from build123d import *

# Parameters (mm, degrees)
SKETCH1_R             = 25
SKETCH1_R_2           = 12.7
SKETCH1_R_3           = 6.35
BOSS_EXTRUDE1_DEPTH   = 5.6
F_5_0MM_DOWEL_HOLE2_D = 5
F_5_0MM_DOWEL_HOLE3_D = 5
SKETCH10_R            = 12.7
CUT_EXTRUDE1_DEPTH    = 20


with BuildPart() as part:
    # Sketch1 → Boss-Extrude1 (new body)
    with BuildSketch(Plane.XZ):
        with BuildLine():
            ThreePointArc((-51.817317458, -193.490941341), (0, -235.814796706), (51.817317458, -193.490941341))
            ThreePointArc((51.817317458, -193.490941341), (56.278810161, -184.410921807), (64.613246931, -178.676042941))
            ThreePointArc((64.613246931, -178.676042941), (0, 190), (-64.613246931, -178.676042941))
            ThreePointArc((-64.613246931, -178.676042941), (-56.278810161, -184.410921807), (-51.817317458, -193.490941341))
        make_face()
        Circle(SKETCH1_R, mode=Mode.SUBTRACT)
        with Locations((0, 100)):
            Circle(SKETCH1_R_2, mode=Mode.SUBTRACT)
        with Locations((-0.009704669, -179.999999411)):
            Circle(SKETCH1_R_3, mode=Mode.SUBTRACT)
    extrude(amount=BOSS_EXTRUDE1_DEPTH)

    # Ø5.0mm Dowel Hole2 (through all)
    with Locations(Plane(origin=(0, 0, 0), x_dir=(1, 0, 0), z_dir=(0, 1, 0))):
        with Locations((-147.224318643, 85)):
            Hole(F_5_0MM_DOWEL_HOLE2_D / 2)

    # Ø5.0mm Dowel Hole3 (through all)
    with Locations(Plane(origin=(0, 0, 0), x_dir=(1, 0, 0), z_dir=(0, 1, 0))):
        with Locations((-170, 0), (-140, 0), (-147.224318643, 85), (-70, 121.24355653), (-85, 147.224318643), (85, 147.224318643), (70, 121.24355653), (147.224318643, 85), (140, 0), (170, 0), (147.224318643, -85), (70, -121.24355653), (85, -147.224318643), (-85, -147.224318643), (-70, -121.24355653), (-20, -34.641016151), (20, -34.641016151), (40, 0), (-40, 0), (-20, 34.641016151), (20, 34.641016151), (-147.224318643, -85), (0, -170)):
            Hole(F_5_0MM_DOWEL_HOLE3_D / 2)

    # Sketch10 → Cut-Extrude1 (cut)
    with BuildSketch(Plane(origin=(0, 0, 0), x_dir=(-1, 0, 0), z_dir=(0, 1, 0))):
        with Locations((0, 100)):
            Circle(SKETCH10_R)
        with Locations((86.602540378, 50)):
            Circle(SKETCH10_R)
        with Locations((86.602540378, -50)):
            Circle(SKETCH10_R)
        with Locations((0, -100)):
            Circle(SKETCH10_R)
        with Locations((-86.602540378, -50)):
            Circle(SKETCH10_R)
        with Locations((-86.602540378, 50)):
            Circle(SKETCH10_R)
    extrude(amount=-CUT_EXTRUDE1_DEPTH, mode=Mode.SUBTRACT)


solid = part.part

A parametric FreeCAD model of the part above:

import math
import FreeCAD as App
import Part
import Sketcher

V = App.Vector
Q = App.Units.Quantity

doc = App.newDocument("Part")
params = doc.addObject("Spreadsheet::Sheet", "Params")
for row, (alias, value) in enumerate([
    ("sketch1_diameter", "50 mm"),
    ("sketch1_radius", "20 mm"),
    ("sketch1_radius2", "190 mm"),
    ("sketch1_diameter2", "12.7 mm"),
    ("sketch1_diameter3", "25.4 mm"),
    ("pad1_length", "5.6 mm"),
    ("sketch2_diameter", "5 mm"),
    ("hole_diameter", "5 mm"),
    ("sketch3_diameter", "5 mm"),
    ("hole2_diameter", "5 mm"),
    ("sketch4_diameter", "25.4 mm"),
    ("pocket1_length", "20 mm"),
], start=1):
    params.set(f"A{row}", alias)
    params.set(f"B{row}", "=" + value)
    params.setAlias(f"B{row}", alias)

body = doc.addObject("PartDesign::Body", "Body")

# Sketch on XZ plane
sketch1 = body.newObject("Sketcher::SketchObject", "Sketch")
sketch1.AttachmentSupport = (doc.getObject("XZ_Plane"), [""])
sketch1.MapMode = "FlatFace"
sketch1.addGeometry([
    Part.ArcOfCircle(Part.Circle(V(0, -183, 0), V(0, 0, 1), 53), math.radians(-168), math.radians(-12)),  # 0
    Part.ArcOfCircle(Part.Circle(V(71, -197, 0), V(0, 0, 1), 20), math.radians(110), math.radians(168)),  # 1
    Part.ArcOfCircle(Part.Circle(V(0, 0, 0), V(0, 0, 1), 190), math.radians(-70), math.radians(250)),  # 2
    Part.ArcOfCircle(Part.Circle(V(-71, -197, 0), V(0, 0, 1), 20), math.radians(12), math.radians(70)),  # 3
    Part.Circle(V(0, -180, 0), V(0, 0, 1), 6),  # 4
    Part.Circle(V(0, 0, 0), V(0, 0, 1), 25),  # 5
    Part.Circle(V(0, 100, 0), V(0, 0, 1), 13),  # 6
], False)
sketch1.addConstraint([
    Sketcher.Constraint("Tangent", 0, 2, 1, 2),
    Sketcher.Constraint("Tangent", 1, 1, 2, 1),
    Sketcher.Constraint("Tangent", 2, 2, 3, 2),
    Sketcher.Constraint("Tangent", 3, 1, 0, 1),
    Sketcher.Constraint("Coincident", 2, 3, -1, 1),
    Sketcher.Constraint("Coincident", 5, 3, -1, 1),
    Sketcher.Constraint("Equal", 1, 3),
    Sketcher.Constraint("PointOnObject", 0, 3, -2),
    Sketcher.Constraint("PointOnObject", 6, 3, -2),
    Sketcher.Constraint("Diameter", 5, Q("50 mm")),
    Sketcher.Constraint("Radius", 1, Q("20 mm")),
    Sketcher.Constraint("Radius", 2, Q("190 mm")),
    Sketcher.Constraint("Diameter", 4, Q("12.7 mm")),
    Sketcher.Constraint("Diameter", 6, Q("25.4 mm")),
    Sketcher.Constraint("DistanceY", 4, 3, -1, 1, Q("179.999999 mm")),
    Sketcher.Constraint("DistanceY", -1, 1, 6, 3, Q("100 mm")),
    Sketcher.Constraint("Radius", 0, Q("52.882034 mm")),
    Sketcher.Constraint("DistanceY", 0, 2, 1, 1, Q("14.814898 mm")),
    Sketcher.Constraint("DistanceX", 4, 3, 1, 1, Q("64.622952 mm")),
])
sketch1.setExpression("Constraints[9]", "Params.sketch1_diameter")
sketch1.setExpression("Constraints[10]", "Params.sketch1_radius")
sketch1.setExpression("Constraints[11]", "Params.sketch1_radius2")
sketch1.setExpression("Constraints[12]", "Params.sketch1_diameter2")
sketch1.setExpression("Constraints[13]", "Params.sketch1_diameter3")
pad1 = body.newObject("PartDesign::Pad", "Pad")
pad1.Profile = sketch1
pad1.setExpression("Length", "Params.pad1_length")

# Sketch on XZ plane
sketch2 = body.newObject("Sketcher::SketchObject", "Sketch001")
sketch2.AttachmentSupport = (doc.getObject("XZ_Plane"), [""])
sketch2.MapMode = "FlatFace"
sketch2.addGeometry(Part.Circle(V(-147.2, -85, 0), V(0, 0, 1), 2.5), False)
sketch2.addConstraint([
    Sketcher.Constraint("Diameter", 0, Q("5 mm")),
    Sketcher.Constraint("DistanceY", 0, 3, -1, 1, Q("85 mm")),
    Sketcher.Constraint("DistanceX", 0, 3, -1, 1, Q("147.224319 mm")),
])
sketch2.setExpression("Constraints[0]", "Params.sketch2_diameter")
doc.recompute()
hole = body.newObject("PartDesign::Hole", "Hole")
hole.Profile = sketch2
hole.ThreadType = "None"
hole.setExpression("Diameter", "Params.hole_diameter")
hole.DepthType = "ThroughAll"
hole.Reversed = True

# Sketch on XZ plane
sketch3 = body.newObject("Sketcher::SketchObject", "Sketch002")
sketch3.AttachmentSupport = (doc.getObject("XZ_Plane"), [""])
sketch3.MapMode = "FlatFace"
sketch3.addGeometry([
    Part.Circle(V(-170, 0, 0), V(0, 0, 1), 2.5),  # 0
    Part.Circle(V(-140, 0, 0), V(0, 0, 1), 2.5),  # 1
    Part.Circle(V(-147.2, -85, 0), V(0, 0, 1), 2.5),  # 2
    Part.Circle(V(-70, -121.2, 0), V(0, 0, 1), 2.5),  # 3
    Part.Circle(V(-85, -147.2, 0), V(0, 0, 1), 2.5),  # 4
    Part.Circle(V(85, -147.2, 0), V(0, 0, 1), 2.5),  # 5
    Part.Circle(V(70, -121.2, 0), V(0, 0, 1), 2.5),  # 6
    Part.Circle(V(147.2, -85, 0), V(0, 0, 1), 2.5),  # 7
    Part.Circle(V(140, 0, 0), V(0, 0, 1), 2.5),  # 8
    Part.Circle(V(170, 0, 0), V(0, 0, 1), 2.5),  # 9
    Part.Circle(V(147.2, 85, 0), V(0, 0, 1), 2.5),  # 10
    Part.Circle(V(70, 121.2, 0), V(0, 0, 1), 2.5),  # 11
    Part.Circle(V(85, 147.2, 0), V(0, 0, 1), 2.5),  # 12
    Part.Circle(V(-85, 147.2, 0), V(0, 0, 1), 2.5),  # 13
    Part.Circle(V(-70, 121.2, 0), V(0, 0, 1), 2.5),  # 14
    Part.Circle(V(-20, 34.6, 0), V(0, 0, 1), 2.5),  # 15
    Part.Circle(V(20, 34.6, 0), V(0, 0, 1), 2.5),  # 16
    Part.Circle(V(40, 0, 0), V(0, 0, 1), 2.5),  # 17
    Part.Circle(V(-40, 0, 0), V(0, 0, 1), 2.5),  # 18
    Part.Circle(V(-20, -34.6, 0), V(0, 0, 1), 2.5),  # 19
    Part.Circle(V(20, -34.6, 0), V(0, 0, 1), 2.5),  # 20
    Part.Circle(V(-147.2, 85, 0), V(0, 0, 1), 2.5),  # 21
    Part.Circle(V(0, 170, 0), V(0, 0, 1), 2.5),  # 22
], False)
sketch3.addConstraint([
    Sketcher.Constraint("Equal", 0, 1),
    Sketcher.Constraint("Equal", 1, 2),
    Sketcher.Constraint("Equal", 2, 3),
    Sketcher.Constraint("Equal", 3, 4),
    Sketcher.Constraint("Equal", 4, 5),
    Sketcher.Constraint("Equal", 5, 6),
    Sketcher.Constraint("Equal", 6, 7),
    Sketcher.Constraint("Equal", 7, 8),
    Sketcher.Constraint("Equal", 8, 9),
    Sketcher.Constraint("Equal", 9, 10),
    Sketcher.Constraint("Equal", 10, 11),
    Sketcher.Constraint("Equal", 11, 12),
    Sketcher.Constraint("Equal", 12, 13),
    Sketcher.Constraint("Equal", 13, 14),
    Sketcher.Constraint("Equal", 14, 15),
    Sketcher.Constraint("Equal", 15, 16),
    Sketcher.Constraint("Equal", 16, 17),
    Sketcher.Constraint("Equal", 17, 18),
    Sketcher.Constraint("Equal", 18, 19),
    Sketcher.Constraint("Equal", 19, 20),
    Sketcher.Constraint("Equal", 20, 21),
    Sketcher.Constraint("Equal", 21, 22),
    Sketcher.Constraint("Symmetric", 1, 3, 8, 3, -1, 1),
    Sketcher.Constraint("Symmetric", 0, 3, 9, 3, -1, 1),
    Sketcher.Constraint("Symmetric", 2, 3, 10, 3, -1, 1),
    Sketcher.Constraint("Symmetric", 3, 3, 11, 3, -1, 1),
    Sketcher.Constraint("Symmetric", 4, 3, 12, 3, -1, 1),
    Sketcher.Constraint("Symmetric", 5, 3, 13, 3, -1, 1),
    Sketcher.Constraint("Symmetric", 6, 3, 14, 3, -1, 1),
    Sketcher.Constraint("Symmetric", 17, 3, 18, 3, -1, 1),
    Sketcher.Constraint("Symmetric", 16, 3, 19, 3, -1, 1),
    Sketcher.Constraint("Symmetric", 15, 3, 20, 3, -1, 1),
    Sketcher.Constraint("Symmetric", 7, 3, 21, 3, -1, 1),
    Sketcher.Constraint("Symmetric", 4, 3, 5, 3, -2),
    Sketcher.Constraint("Symmetric", 3, 3, 6, 3, -2),
    Sketcher.Constraint("Symmetric", 2, 3, 7, 3, -2),
    Sketcher.Constraint("Symmetric", 15, 3, 16, 3, -2),
    Sketcher.Constraint("PointOnObject", 0, 3, -1),
    Sketcher.Constraint("PointOnObject", 1, 3, -1),
    Sketcher.Constraint("PointOnObject", 17, 3, -1),
    Sketcher.Constraint("PointOnObject", 22, 3, -2),
    Sketcher.Constraint("Diameter", 0, Q("5 mm")),
    Sketcher.Constraint("DistanceX", 0, 3, -1, 1, Q("170 mm")),
    Sketcher.Constraint("DistanceX", 1, 3, -1, 1, Q("140 mm")),
    Sketcher.Constraint("DistanceY", 2, 3, -1, 1, Q("85 mm")),
    Sketcher.Constraint("DistanceX", 3, 3, -1, 1, Q("70 mm")),
    Sketcher.Constraint("DistanceX", 4, 3, -1, 1, Q("85 mm")),
    Sketcher.Constraint("DistanceX", 15, 3, -1, 1, Q("20 mm")),
    Sketcher.Constraint("DistanceX", -1, 1, 17, 3, Q("40 mm")),
    Sketcher.Constraint("DistanceY", -1, 1, 22, 3, Q("170 mm")),
    Sketcher.Constraint("DistanceX", 2, 3, -1, 1, Q("147.224319 mm")),
    Sketcher.Constraint("DistanceY", 4, 3, -1, 1, Q("147.224319 mm")),
    Sketcher.Constraint("DistanceY", 15, 3, 14, 3, Q("86.60254 mm")),
    Sketcher.Constraint("DistanceY", 3, 3, -1, 1, Q("121.243557 mm")),
])
sketch3.setExpression("Constraints[41]", "Params.sketch3_diameter")
doc.recompute()
hole2 = body.newObject("PartDesign::Hole", "Hole001")
hole2.Profile = sketch3
hole2.ThreadType = "None"
hole2.setExpression("Diameter", "Params.hole2_diameter")
hole2.DepthType = "ThroughAll"
hole2.Reversed = True

# Sketch on XZ plane
sketch4 = body.newObject("Sketcher::SketchObject", "Sketch003")
sketch4.AttachmentSupport = (doc.getObject("XZ_Plane"), [""])
sketch4.MapMode = "FlatFace"
sketch4.addGeometry([
    Part.Circle(V(0, 100, 0), V(0, 0, 1), 13),  # 0
    Part.Circle(V(-87, 50, 0), V(0, 0, 1), 13),  # 1
    Part.Circle(V(-87, -50, 0), V(0, 0, 1), 13),  # 2
    Part.Circle(V(0, -100, 0), V(0, 0, 1), 13),  # 3
    Part.Circle(V(87, -50, 0), V(0, 0, 1), 13),  # 4
    Part.Circle(V(87, 50, 0), V(0, 0, 1), 13),  # 5
], False)
sketch4.addConstraint([
    Sketcher.Constraint("Equal", 0, 1),
    Sketcher.Constraint("Equal", 1, 2),
    Sketcher.Constraint("Equal", 2, 3),
    Sketcher.Constraint("Equal", 3, 4),
    Sketcher.Constraint("Equal", 4, 5),
    Sketcher.Constraint("Symmetric", 0, 3, 3, 3, -1, 1),
    Sketcher.Constraint("Symmetric", 1, 3, 4, 3, -1, 1),
    Sketcher.Constraint("Symmetric", 2, 3, 5, 3, -1, 1),
    Sketcher.Constraint("Symmetric", 2, 3, 4, 3, -2),
    Sketcher.Constraint("PointOnObject", 0, 3, -2),
    Sketcher.Constraint("Diameter", 0, Q("25.4 mm")),
    Sketcher.Constraint("DistanceY", -1, 1, 0, 3, Q("100 mm")),
    Sketcher.Constraint("DistanceY", -1, 1, 1, 3, Q("50 mm")),
    Sketcher.Constraint("DistanceX", 1, 3, -1, 1, Q("86.60254 mm")),
])
sketch4.setExpression("Constraints[10]", "Params.sketch4_diameter")
pocket1 = body.newObject("PartDesign::Pocket", "Pocket")
pocket1.Profile = sketch4
pocket1.setExpression("Length", "Params.pocket1_length")
pocket1.Reversed = True

doc.recompute()
